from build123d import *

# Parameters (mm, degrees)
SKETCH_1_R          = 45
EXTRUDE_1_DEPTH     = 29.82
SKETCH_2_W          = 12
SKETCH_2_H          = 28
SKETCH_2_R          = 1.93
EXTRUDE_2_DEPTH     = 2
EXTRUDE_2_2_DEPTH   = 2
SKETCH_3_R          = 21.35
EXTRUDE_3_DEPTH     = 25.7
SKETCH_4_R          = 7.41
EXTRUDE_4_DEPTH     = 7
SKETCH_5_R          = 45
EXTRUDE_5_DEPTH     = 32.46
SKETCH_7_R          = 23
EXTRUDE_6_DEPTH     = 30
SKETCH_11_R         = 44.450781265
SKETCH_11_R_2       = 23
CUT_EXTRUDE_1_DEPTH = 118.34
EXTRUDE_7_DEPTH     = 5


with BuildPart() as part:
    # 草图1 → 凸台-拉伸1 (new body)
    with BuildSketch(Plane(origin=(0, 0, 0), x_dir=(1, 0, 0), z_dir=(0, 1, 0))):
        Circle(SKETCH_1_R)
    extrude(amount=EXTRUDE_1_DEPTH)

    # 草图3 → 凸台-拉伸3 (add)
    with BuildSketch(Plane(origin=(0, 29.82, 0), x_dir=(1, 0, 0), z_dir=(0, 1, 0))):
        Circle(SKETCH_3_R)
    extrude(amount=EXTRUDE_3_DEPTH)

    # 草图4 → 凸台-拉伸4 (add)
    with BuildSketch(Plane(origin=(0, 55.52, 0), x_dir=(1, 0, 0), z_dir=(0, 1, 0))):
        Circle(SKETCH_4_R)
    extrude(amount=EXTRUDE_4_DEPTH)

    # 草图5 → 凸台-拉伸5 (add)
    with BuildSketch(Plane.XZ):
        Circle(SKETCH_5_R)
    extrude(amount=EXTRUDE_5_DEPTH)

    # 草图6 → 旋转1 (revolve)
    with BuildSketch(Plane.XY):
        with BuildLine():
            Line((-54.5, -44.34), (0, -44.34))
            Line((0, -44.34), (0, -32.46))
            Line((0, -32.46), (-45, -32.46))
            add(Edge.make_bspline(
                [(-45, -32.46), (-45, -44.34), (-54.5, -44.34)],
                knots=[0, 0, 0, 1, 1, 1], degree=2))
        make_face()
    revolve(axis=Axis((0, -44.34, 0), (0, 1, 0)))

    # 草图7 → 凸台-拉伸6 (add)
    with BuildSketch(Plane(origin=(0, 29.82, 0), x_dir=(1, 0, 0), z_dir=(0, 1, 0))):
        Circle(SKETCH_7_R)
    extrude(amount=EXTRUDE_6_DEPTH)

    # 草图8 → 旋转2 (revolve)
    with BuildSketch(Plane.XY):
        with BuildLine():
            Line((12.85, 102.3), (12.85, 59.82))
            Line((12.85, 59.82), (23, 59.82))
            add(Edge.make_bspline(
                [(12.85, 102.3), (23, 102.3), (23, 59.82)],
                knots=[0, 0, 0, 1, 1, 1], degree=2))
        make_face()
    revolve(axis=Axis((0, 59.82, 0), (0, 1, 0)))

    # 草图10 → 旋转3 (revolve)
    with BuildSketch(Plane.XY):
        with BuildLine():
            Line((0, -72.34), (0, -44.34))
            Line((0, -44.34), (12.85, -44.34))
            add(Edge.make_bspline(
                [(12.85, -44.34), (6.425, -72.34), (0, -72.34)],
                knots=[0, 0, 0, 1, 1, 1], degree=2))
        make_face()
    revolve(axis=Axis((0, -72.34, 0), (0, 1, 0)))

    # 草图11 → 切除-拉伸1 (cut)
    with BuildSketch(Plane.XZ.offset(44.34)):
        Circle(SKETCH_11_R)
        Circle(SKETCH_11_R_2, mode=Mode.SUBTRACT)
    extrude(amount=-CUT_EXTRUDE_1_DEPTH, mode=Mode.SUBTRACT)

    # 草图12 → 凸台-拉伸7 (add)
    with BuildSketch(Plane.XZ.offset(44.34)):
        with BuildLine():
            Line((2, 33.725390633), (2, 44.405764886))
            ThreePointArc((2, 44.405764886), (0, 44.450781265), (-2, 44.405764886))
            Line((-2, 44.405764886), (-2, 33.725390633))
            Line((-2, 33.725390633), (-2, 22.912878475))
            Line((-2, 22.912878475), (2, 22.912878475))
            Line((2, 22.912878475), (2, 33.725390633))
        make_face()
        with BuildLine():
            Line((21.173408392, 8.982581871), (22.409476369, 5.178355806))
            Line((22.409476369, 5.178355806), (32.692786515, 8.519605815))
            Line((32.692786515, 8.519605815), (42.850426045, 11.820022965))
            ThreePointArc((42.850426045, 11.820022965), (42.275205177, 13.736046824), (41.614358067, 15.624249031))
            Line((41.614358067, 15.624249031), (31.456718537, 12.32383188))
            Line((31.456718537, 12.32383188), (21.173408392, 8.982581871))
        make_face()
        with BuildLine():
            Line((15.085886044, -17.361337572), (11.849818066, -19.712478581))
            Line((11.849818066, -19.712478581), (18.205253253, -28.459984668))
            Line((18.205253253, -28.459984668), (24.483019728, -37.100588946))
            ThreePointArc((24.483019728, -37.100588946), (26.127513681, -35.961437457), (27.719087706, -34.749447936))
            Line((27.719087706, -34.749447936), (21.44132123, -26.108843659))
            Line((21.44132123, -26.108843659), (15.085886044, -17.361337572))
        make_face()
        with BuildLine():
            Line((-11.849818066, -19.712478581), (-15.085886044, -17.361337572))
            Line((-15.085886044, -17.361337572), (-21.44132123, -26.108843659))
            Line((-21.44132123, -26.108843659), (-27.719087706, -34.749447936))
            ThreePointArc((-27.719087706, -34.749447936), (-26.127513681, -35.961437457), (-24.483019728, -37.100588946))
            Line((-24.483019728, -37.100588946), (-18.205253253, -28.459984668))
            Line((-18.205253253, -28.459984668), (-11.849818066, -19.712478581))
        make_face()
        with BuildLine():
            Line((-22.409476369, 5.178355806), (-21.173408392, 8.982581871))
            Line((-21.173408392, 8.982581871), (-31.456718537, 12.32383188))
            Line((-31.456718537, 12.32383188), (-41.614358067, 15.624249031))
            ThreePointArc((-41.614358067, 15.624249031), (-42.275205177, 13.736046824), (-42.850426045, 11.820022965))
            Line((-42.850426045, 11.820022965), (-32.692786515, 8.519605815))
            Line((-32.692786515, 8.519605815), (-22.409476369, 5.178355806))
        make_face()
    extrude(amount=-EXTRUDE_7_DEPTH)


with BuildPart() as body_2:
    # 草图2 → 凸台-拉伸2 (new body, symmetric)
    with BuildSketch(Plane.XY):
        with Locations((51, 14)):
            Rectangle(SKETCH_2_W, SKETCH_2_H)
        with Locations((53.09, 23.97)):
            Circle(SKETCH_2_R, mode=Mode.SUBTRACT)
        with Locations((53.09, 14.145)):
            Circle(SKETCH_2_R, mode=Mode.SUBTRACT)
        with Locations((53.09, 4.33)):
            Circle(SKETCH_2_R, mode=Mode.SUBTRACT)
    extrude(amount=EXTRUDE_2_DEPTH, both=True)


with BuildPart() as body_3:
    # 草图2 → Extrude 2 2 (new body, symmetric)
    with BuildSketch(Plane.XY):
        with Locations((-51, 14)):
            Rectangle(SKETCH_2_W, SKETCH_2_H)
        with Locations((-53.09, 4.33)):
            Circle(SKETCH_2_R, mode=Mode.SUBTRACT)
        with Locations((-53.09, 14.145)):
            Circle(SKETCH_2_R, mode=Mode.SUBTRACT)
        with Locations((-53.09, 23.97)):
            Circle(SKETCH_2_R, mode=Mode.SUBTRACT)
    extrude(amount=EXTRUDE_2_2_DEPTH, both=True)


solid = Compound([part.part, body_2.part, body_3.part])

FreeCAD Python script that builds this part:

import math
import FreeCAD as App
import Part
import Sketcher

V = App.Vector
Q = App.Units.Quantity


def add_polygon(sketch, points):
    """Adds a closed chain of lines whose ends are joined by coincident constraints."""
    first, n = sketch.GeometryCount, len(points)
    for a, b in zip(points, points[1:] + points[:1]):
        sketch.addGeometry(Part.LineSegment(App.Vector(*a, 0), App.Vector(*b, 0)), False)
    for i in range(n):
        sketch.addConstraint(Sketcher.Constraint("Coincident", first + i, 2, first + (i + 1) % n, 1))

doc = App.newDocument("Part")
body = doc.addObject("PartDesign::Body", "Body")
body.AllowCompound = True

# Sketch on XZ plane
sketch1 = body.newObject("Sketcher::SketchObject", "Sketch")
sketch1.AttachmentSupport = (doc.getObject("XZ_Plane"), [""])
sketch1.MapMode = "FlatFace"
sketch1.addGeometry(Part.Circle(V(0, 0, 0), V(0, 0, 1), 45), False)
sketch1.addConstraint(Sketcher.Constraint("Coincident", 0, 3, -1, 1))
sketch1.addConstraint(Sketcher.Constraint("Diameter", 0, 90.0))
pad1 = body.newObject("PartDesign::Pad", "Pad")
pad1.Profile = sketch1
pad1.Length = 29.82
pad1.Reversed = True

# Sketch on XZ plane
sketch2 = body.newObject("Sketcher::SketchObject", "Sketch001")
sketch2.AttachmentSupport = (doc.getObject("XZ_Plane"), [""])
sketch2.MapMode = "FlatFace"
sketch2.AttachmentOffset = App.Placement(V(0, 0, -29.82), App.Rotation())
sketch2.addGeometry(Part.Circle(V(0, 0, 0), V(0, 0, 1), 21.35), False)
sketch2.addConstraint(Sketcher.Constraint("Coincident", 0, 3, -1, 1))
sketch2.addConstraint(Sketcher.Constraint("Diameter", 0, 42.7))
pad2 = body.newObject("PartDesign::Pad", "Pad001")
pad2.Profile = sketch2
pad2.Length = 25.7
pad2.Reversed = True

# Sketch on XZ plane
sketch3 = body.newObject("Sketcher::SketchObject", "Sketch002")
sketch3.AttachmentSupport = (doc.getObject("XZ_Plane"), [""])
sketch3.MapMode = "FlatFace"
sketch3.AttachmentOffset = App.Placement(V(0, 0, -55.52), App.Rotation())
sketch3.addGeometry(Part.Circle(V(0, 0, 0), V(0, 0, 1), 7.41), False)
sketch3.addConstraint(Sketcher.Constraint("Coincident", 0, 3, -1, 1))
sketch3.addConstraint(Sketcher.Constraint("Diameter", 0, 14.82))
pad3 = body.newObject("PartDesign::Pad", "Pad002")
pad3.Profile = sketch3
pad3.Length = 7
pad3.Reversed = True

# Sketch on XZ plane
sketch4 = body.newObject("Sketcher::SketchObject", "Sketch003")
sketch4.AttachmentSupport = (doc.getObject("XZ_Plane"), [""])
sketch4.MapMode = "FlatFace"
sketch4.addGeometry(Part.Circle(V(0, 0, 0), V(0, 0, 1), 45), False)
sketch4.addConstraint(Sketcher.Constraint("Coincident", 0, 3, -1, 1))
sketch4.addConstraint(Sketcher.Constraint("Diameter", 0, 90.0))
pad4 = body.newObject("PartDesign::Pad", "Pad003")
pad4.Profile = sketch4
pad4.Length = 32.46

# Sketch on XY plane
sketch5 = body.newObject("Sketcher::SketchObject", "Sketch004")
sketch5.AttachmentSupport = (doc.getObject("XY_Plane"), [""])
sketch5.MapMode = "FlatFace"
sketch5.addGeometry(Part.LineSegment(V(-54.5, -44.34, 0), V(0, -44.34, 0)), False)
sketch5.addGeometry(Part.LineSegment(V(0, -44.34, 0), V(0, -32.46, 0)), False)
sketch5.addGeometry(Part.LineSegment(V(0, -32.46, 0), V(-45, -32.46, 0)), False)
sketch5.addGeometry(Part.BSplineCurve([V(-45, -32.46, 0), V(-45, -44.34, 0), V(-54.5, -44.34, 0)], [3, 3], [0, 1], False, 2, [1, 1, 1], False), False)
sketch5.addConstraint(Sketcher.Constraint("Block", 3))
sketch5.addConstraint(Sketcher.Constraint("Coincident", 0, 2, 1, 1))
sketch5.addConstraint(Sketcher.Constraint("Coincident", 1, 2, 2, 1))
sketch5.addConstraint(Sketcher.Constraint("Coincident", 2, 2, 3, 1))
sketch5.addConstraint(Sketcher.Constraint("Coincident", 3, 2, 0, 1))
sketch5.addConstraint(Sketcher.Constraint("Horizontal", 0))
sketch5.addConstraint(Sketcher.Constraint("Vertical", 1))
sketch5.addConstraint(Sketcher.Constraint("Horizontal", 2))
sketch5.addConstraint(Sketcher.Constraint("PointOnObject", 0, 2, -2))
revolution = body.newObject("PartDesign::Revolution", "Revolution")
revolution.Profile = sketch5
revolution.ReferenceAxis = (sketch5, ["V_Axis"])
revolution.Angle = 360

# Sketch on XZ plane
sketch6 = body.newObject("Sketcher::SketchObject", "Sketch005")
sketch6.AttachmentSupport = (doc.getObject("XZ_Plane"), [""])
sketch6.MapMode = "FlatFace"
sketch6.AttachmentOffset = App.Placement(V(0, 0, -29.82), App.Rotation())
sketch6.addGeometry(Part.Circle(V(0, 0, 0), V(0, 0, 1), 23), False)
sketch6.addConstraint(Sketcher.Constraint("Coincident", 0, 3, -1, 1))
sketch6.addConstraint(Sketcher.Constraint("Diameter", 0, 46.0))
pad5 = body.newObject("PartDesign::Pad", "Pad004")
pad5.Profile = sketch6
pad5.Length = 30
pad5.Reversed = True

# Sketch on XY plane
sketch7 = body.newObject("Sketcher::SketchObject", "Sketch006")
sketch7.AttachmentSupport = (doc.getObject("XY_Plane"), [""])
sketch7.MapMode = "FlatFace"
sketch7.addGeometry(Part.LineSegment(V(12.85, 102.3, 0), V(12.85, 59.82, 0)), False)
sketch7.addGeometry(Part.LineSegment(V(12.85, 59.82, 0), V(23, 59.82, 0)), False)
sketch7.addGeometry(Part.BSplineCurve([V(12.85, 102.3, 0), V(23, 102.3, 0), V(23, 59.82, 0)], [3, 3], [0, 1], False, 2, [1, 1, 1], False), False)
sketch7.addConstraint(Sketcher.Constraint("Block", 2))
sketch7.addConstraint(Sketcher.Constraint("Coincident", 0, 2, 1, 1))
sketch7.addConstraint(Sketcher.Constraint("Coincident", 1, 2, 2, 2))
sketch7.addConstraint(Sketcher.Constraint("Coincident", 2, 1, 0, 1))
sketch7.addConstraint(Sketcher.Constraint("Vertical", 0))
sketch7.addConstraint(Sketcher.Constraint("Horizontal", 1))
revolution2 = body.newObject("PartDesign::Revolution", "Revolution001")
revolution2.Profile = sketch7
revolution2.ReferenceAxis = (sketch7, ["V_Axis"])
revolution2.Angle = 360

# Sketch on XY plane
sketch8 = body.newObject("Sketcher::SketchObject", "Sketch007")
sketch8.AttachmentSupport = (doc.getObject("XY_Plane"), [""])
sketch8.MapMode = "FlatFace"
sketch8.addGeometry(Part.LineSegment(V(0, -44.34, 0), V(0, -72.34, 0)), False)
sketch8.addGeometry(Part.BSplineCurve([V(12.85, -44.34, 0), V(6.425, -72.34, 0), V(0, -72.34, 0)], [3, 3], [0, 1], False, 2, [1, 1, 1], False), False)
sketch8.addGeometry(Part.LineSegment(V(12.85, -44.34, 0), V(0, -44.34, 0)), False)
sketch8.addConstraint(Sketcher.Constraint("Block", 1))
sketch8.addConstraint(Sketcher.Constraint("Coincident", 0, 2, 1, 2))
sketch8.addConstraint(Sketcher.Constraint("Coincident", 1, 1, 2, 1))
sketch8.addConstraint(Sketcher.Constraint("Coincident", 2, 2, 0, 1))
sketch8.addConstraint(Sketcher.Constraint("Vertical", 0))
sketch8.addConstraint(Sketcher.Constraint("Horizontal", 2))
revolution3 = body.newObject("PartDesign::Revolution", "Revolution002")
revolution3.Profile = sketch8
revolution3.ReferenceAxis = (sketch8, ["V_Axis"])
revolution3.Angle = 360

# Sketch on XZ plane
sketch9 = body.newObject("Sketcher::SketchObject", "Sketch008")
sketch9.AttachmentSupport = (doc.getObject("XZ_Plane"), [""])
sketch9.MapMode = "FlatFace"
sketch9.AttachmentOffset = App.Placement(V(0, 0, 44.34), App.Rotation())
sketch9.addGeometry(Part.Circle(V(0, 0, 0), V(0, 0, 1), 44.450781), False)
sketch9.addGeometry(Part.Circle(V(0, 0, 0), V(0, 0, 1), 23), False)
sketch9.addConstraint(Sketcher.Constraint("Coincident", 0, 3, -1, 1))
sketch9.addConstraint(Sketcher.Constraint("Coincident", 1, 3, -1, 1))
sketch9.addConstraint(Sketcher.Constraint("Diameter", 1, 46.0))
sketch9.addConstraint(Sketcher.Constraint("Diameter", 0, 88.901563))
pocket1 = body.newObject("PartDesign::Pocket", "Pocket")
pocket1.Profile = sketch9
pocket1.Length = 118.34

# Sketch on XZ plane
sketch10 = body.newObject("Sketcher::SketchObject", "Sketch009")
sketch10.AttachmentSupport = (doc.getObject("XZ_Plane"), [""])
sketch10.MapMode = "FlatFace"
sketch10.AttachmentOffset = App.Placement(V(0, 0, 44.34), App.Rotation())
sketch10.addGeometry(Part.ArcOfCircle(Part.Circle(V(0, 0, 0), V(0, 0, 1), 44.450782), math.radians(87.421187), math.radians(92.578813)), False)
sketch10.addGeometry(Part.LineSegment(V(-2, 44.405765, 0), V(-2, 22.912878, 0)), False)
sketch10.addGeometry(Part.LineSegment(V(-2, 22.912878, 0), V(2, 22.912878, 0)), False)
sketch10.addGeometry(Part.LineSegment(V(2, 22.912878, 0), V(2, 44.405765, 0)), False)
sketch10.addGeometry(Part.LineSegment(V(21.173408, 8.982582, 0), V(22.409476, 5.178356, 0)), False)
sketch10.addGeometry(Part.LineSegment(V(22.409476, 5.178356, 0), V(32.692787, 8.519606, 0)), False)
sketch10.addGeometry(Part.LineSegment(V(32.692787, 8.519606, 0), V(42.850426, 11.820023, 0)), False)
sketch10.addGeometry(Part.ArcOfCircle(Part.Circle(V(0, 0, 0), V(0, 0, 1), 44.450781), math.radians(15.421187), math.radians(20.578813)), False)
sketch10.addGeometry(Part.LineSegment(V(41.614358, 15.624249, 0), V(31.456719, 12.323832, 0)), False)
sketch10.addGeometry(Part.LineSegment(V(31.456719, 12.323832, 0), V(21.173408, 8.982582, 0)), False)
sketch10.addGeometry(Part.LineSegment(V(15.085886, -17.361338, 0), V(11.849818, -19.712479, 0)), False)
sketch10.addGeometry(Part.LineSegment(V(11.849818, -19.712479, 0), V(18.205253, -28.459985, 0)), False)
sketch10.addGeometry(Part.LineSegment(V(18.205253, -28.459985, 0), V(24.48302, -37.100589, 0)), False)
sketch10.addGeometry(Part.ArcOfCircle(Part.Circle(V(0, 0, 0), V(0, 0, 1), 44.450781), math.radians(-56.578813), math.radians(-51.421187)), False)
sketch10.addGeometry(Part.LineSegment(V(27.719088, -34.749448, 0), V(21.441321, -26.108844, 0)), False)
sketch10.addGeometry(Part.LineSegment(V(21.441321, -26.108844, 0), V(15.085886, -17.361338, 0)), False)
sketch10.addGeometry(Part.LineSegment(V(-11.849818, -19.712479, 0), V(-15.085886, -17.361338, 0)), False)
sketch10.addGeometry(Part.LineSegment(V(-15.085886, -17.361338, 0), V(-21.441321, -26.108844, 0)), False)
sketch10.addGeometry(Part.LineSegment(V(-21.441321, -26.108844, 0), V(-27.719088, -34.749448, 0)), False)
sketch10.addGeometry(Part.ArcOfCircle(Part.Circle(V(0, 0, 0), V(0, 0, 1), 44.450781), math.radians(-128.578813), math.radians(-123.421187)), False)
sketch10.addGeometry(Part.LineSegment(V(-24.48302, -37.100589, 0), V(-18.205253, -28.459985, 0)), False)
sketch10.addGeometry(Part.LineSegment(V(-18.205253, -28.459985, 0), V(-11.849818, -19.712479, 0)), False)
sketch10.addGeometry(Part.LineSegment(V(-22.409476, 5.178356, 0), V(-21.173408, 8.982582, 0)), False)
sketch10.addGeometry(Part.LineSegment(V(-21.173408, 8.982582, 0), V(-31.456719, 12.323832, 0)), False)
sketch10.addGeometry(Part.LineSegment(V(-31.456719, 12.323832, 0), V(-41.614358, 15.624249, 0)), False)
sketch10.addGeometry(Part.ArcOfCircle(Part.Circle(V(0, 0, 0), V(0, 0, 1), 44.450781), math.radians(159.421187), math.radians(164.578813)), False)
sketch10.addGeometry(Part.LineSegment(V(-42.850426, 11.820023, 0), V(-32.692787, 8.519606, 0)), False)
sketch10.addGeometry(Part.LineSegment(V(-32.692787, 8.519606, 0), V(-22.409476, 5.178356, 0)), False)
sketch10.addConstraint(Sketcher.Constraint("Coincident", 0, 2, 1, 1))
sketch10.addConstraint(Sketcher.Constraint("Coincident", 1, 2, 2, 1))
sketch10.addConstraint(Sketcher.Constraint("Coincident", 2, 2, 3, 1))
sketch10.addConstraint(Sketcher.Constraint("Coincident", 3, 2, 0, 1))
sketch10.addConstraint(Sketcher.Constraint("Coincident", 4, 2, 5, 1))
sketch10.addConstraint(Sketcher.Constraint("Coincident", 5, 2, 6, 1))
sketch10.addConstraint(Sketcher.Constraint("Coincident", 6, 2, 7, 1))
sketch10.addConstraint(Sketcher.Constraint("Coincident", 7, 2, 8, 1))
sketch10.addConstraint(Sketcher.Constraint("Coincident", 8, 2, 9, 1))
sketch10.addConstraint(Sketcher.Constraint("Coincident", 9, 2, 4, 1))
sketch10.addConstraint(Sketcher.Constraint("Coincident", 10, 2, 11, 1))
sketch10.addConstraint(Sketcher.Constraint("Coincident", 11, 2, 12, 1))
sketch10.addConstraint(Sketcher.Constraint("Coincident", 12, 2, 13, 1))
sketch10.addConstraint(Sketcher.Constraint("Coincident", 13, 2, 14, 1))
sketch10.addConstraint(Sketcher.Constraint("Coincident", 14, 2, 15, 1))
sketch10.addConstraint(Sketcher.Constraint("Coincident", 15, 2, 10, 1))
sketch10.addConstraint(Sketcher.Constraint("Coincident", 16, 2, 17, 1))
sketch10.addConstraint(Sketcher.Constraint("Coincident", 17, 2, 18, 1))
sketch10.addConstraint(Sketcher.Constraint("Coincident", 18, 2, 19, 1))
sketch10.addConstraint(Sketcher.Constraint("Coincident", 19, 2, 20, 1))
sketch10.addConstraint(Sketcher.Constraint("Coincident", 20, 2, 21, 1))
sketch10.addConstraint(Sketcher.Constraint("Coincident", 21, 2, 16, 1))
sketch10.addConstraint(Sketcher.Constraint("Coincident", 22, 2, 23, 1))
sketch10.addConstraint(Sketcher.Constraint("Coincident", 23, 2, 24, 1))
sketch10.addConstraint(Sketcher.Constraint("Coincident", 24, 2, 25, 1))
sketch10.addConstraint(Sketcher.Constraint("Coincident", 25, 2, 26, 1))
sketch10.addConstraint(Sketcher.Constraint("Coincident", 26, 2, 27, 1))
sketch10.addConstraint(Sketcher.Constraint("Coincident", 27, 2, 22, 1))
sketch10.addConstraint(Sketcher.Constraint("Vertical", 1))
sketch10.addConstraint(Sketcher.Constraint("Horizontal", 2))
sketch10.addConstraint(Sketcher.Constraint("Vertical", 3))
sketch10.addConstraint(Sketcher.Constraint("Coincident", 0, 3, -1, 1))
sketch10.addConstraint(Sketcher.Constraint("Coincident", 7, 3, -1, 1))
sketch10.addConstraint(Sketcher.Constraint("Coincident", 13, 3, -1, 1))
sketch10.addConstraint(Sketcher.Constraint("Coincident", 19, 3, -1, 1))
sketch10.addConstraint(Sketcher.Constraint("Coincident", 25, 3, -1, 1))
sketch10.addConstraint(Sketcher.Constraint("Equal", 0, 7))
sketch10.addConstraint(Sketcher.Constraint("Equal", 7, 13))
sketch10.addConstraint(Sketcher.Constraint("Equal", 13, 19))
sketch10.addConstraint(Sketcher.Constraint("Equal", 19, 25))
sketch10.addConstraint(Sketcher.Constraint("Symmetric", 15, 2, 16, 2, -2))
sketch10.addConstraint(Sketcher.Constraint("Symmetric", 14, 2, 17, 2, -2))
sketch10.addConstraint(Sketcher.Constraint("Symmetric", 11, 2, 20, 2, -2))
sketch10.addConstraint(Sketcher.Constraint("Symmetric", 10, 2, 21, 2, -2))
sketch10.addConstraint(Sketcher.Constraint("Symmetric", 9, 2, 22, 2, -2))
sketch10.addConstraint(Sketcher.Constraint("Symmetric", 8, 2, 23, 2, -2))
sketch10.addConstraint(Sketcher.Constraint("Symmetric", 5, 2, 26, 2, -2))
sketch10.addConstraint(Sketcher.Constraint("Symmetric", 4, 2, 27, 2, -2))
sketch10.addConstraint(Sketcher.Constraint("Perpendicular", 4, 5))
sketch10.addConstraint(Sketcher.Constraint("Parallel", 5, 6))
sketch10.addConstraint(Sketcher.Constraint("Parallel", 6, 8))
sketch10.addConstraint(Sketcher.Constraint("Parallel", 8, 9))
sketch10.addConstraint(Sketcher.Constraint("Perpendicular", 10, 11))
sketch10.addConstraint(Sketcher.Constraint("Parallel", 11, 12))
sketch10.addConstraint(Sketcher.Constraint("Parallel", 12, 14))
sketch10.addConstraint(Sketcher.Constraint("Parallel", 14, 15))
sketch10.addConstraint(Sketcher.Constraint("Parallel", 17, 18))
sketch10.addConstraint(Sketcher.Constraint("Parallel", 18, 20))
sketch10.addConstraint(Sketcher.Constraint("Parallel", 23, 24))
sketch10.addConstraint(Sketcher.Constraint("Parallel", 24, 26))
sketch10.addConstraint(Sketcher.Constraint("Horizontal", 0, 2, 3, 2))
sketch10.addConstraint(Sketcher.Constraint("Equal", 6, 8))
sketch10.addConstraint(Sketcher.Constraint("Equal", 5, 9))
sketch10.addConstraint(Sketcher.Constraint("Equal", 4, 10))
sketch10.addConstraint(Sketcher.Constraint("Equal", 9, 11))
sketch10.addConstraint(Sketcher.Constraint("Equal", 8, 12))
sketch10.addConstraint(Sketcher.Constraint("Equal", 12, 14))
sketch10.addConstraint(Sketcher.Constraint("Equal", 11, 15))
sketch10.addConstraint(Sketcher.Constraint("DistanceX", 2, 1, 2, 2, 4.0))
sketch10.addConstraint(Sketcher.Constraint("Angle", 4, Q("-72 deg")))
sketch10.addConstraint(Sketcher.Constraint("Angle", 10, Q("-144 deg")))
sketch10.addConstraint(Sketcher.Constraint("Distance", 4, 4.0))
sketch10.addConstraint(Sketcher.Constraint("Radius", 0, 44.450782))
sketch10.addConstraint(Sketcher.Constraint("DistanceX", 10, 2, 12, 2, 12.633202))
sketch10.addConstraint(Sketcher.Constraint("DistanceX", 13, 2, 5, 2, 4.973699))
sketch10.addConstraint(Sketcher.Constraint("DistanceY", 1, 2, 1, 1, 21.492886))
pad6 = body.newObject("PartDesign::Pad", "Pad005")
pad6.Profile = sketch10
pad6.Length = 5
pad6.Reversed = True
body2 = doc.addObject("PartDesign::Body", "Body001")

# Sketch on XY plane
sketch11 = body2.newObject("Sketcher::SketchObject", "Sketch010")
sketch11.AttachmentSupport = (doc.getObject("XY_Plane001"), [""])
sketch11.MapMode = "FlatFace"
add_polygon(sketch11, [(45, 28), (45, 0), (57, 0), (57, 28)])  # lines 0-3
sketch11.addGeometry(Part.Circle(V(53.09, 4.33, 0), V(0, 0, 1), 1.93), False)  # 4
sketch11.addGeometry(Part.Circle(V(53.09, 14.145, 0), V(0, 0, 1), 1.93), False)  # 5
sketch11.addGeometry(Part.Circle(V(53.09, 23.97, 0), V(0, 0, 1), 1.93), False)  # 6
sketch11.addConstraint(Sketcher.Constraint("Vertical", 0))
sketch11.addConstraint(Sketcher.Constraint("Horizontal", 1))
sketch11.addConstraint(Sketcher.Constraint("Vertical", 2))
sketch11.addConstraint(Sketcher.Constraint("Horizontal", 3))
sketch11.addConstraint(Sketcher.Constraint("Equal", 4, 5))
sketch11.addConstraint(Sketcher.Constraint("Equal", 5, 6))
sketch11.addConstraint(Sketcher.Constraint("PointOnObject", 0, 2, -1))
sketch11.addConstraint(Sketcher.Constraint("Vertical", 4, 3, 5, 3))
sketch11.addConstraint(Sketcher.Constraint("Vertical", 5, 3, 6, 3))
sketch11.addConstraint(Sketcher.Constraint("Diameter", 4, 3.86))
sketch11.addConstraint(Sketcher.Constraint("DistanceX", 1, 1, 1, 2, 12.0))
sketch11.addConstraint(Sketcher.Constraint("DistanceY", 0, 2, 0, 1, 28.0))
sketch11.addConstraint(Sketcher.Constraint("DistanceX", -1, 1, 0, 2, 45.0))
sketch11.addConstraint(Sketcher.Constraint("DistanceX", -1, 1, 4, 3, 53.09))
sketch11.addConstraint(Sketcher.Constraint("DistanceY", -1, 1, 4, 3, 4.33))
sketch11.addConstraint(Sketcher.Constraint("DistanceY", -1, 1, 6, 3, 23.97))
sketch11.addConstraint(Sketcher.Constraint("DistanceY", -1, 1, 5, 3, 14.145))
pad7 = body2.newObject("PartDesign::Pad", "Pad006")
pad7.Profile = sketch11
pad7.Length = 4
pad7.Midplane = True
body3 = doc.addObject("PartDesign::Body", "Body002")

# Sketch on XY plane
sketch12 = body3.newObject("Sketcher::SketchObject", "Sketch011")
sketch12.AttachmentSupport = (doc.getObject("XY_Plane002"), [""])
sketch12.MapMode = "FlatFace"
add_polygon(sketch12, [(-57, 28), (-57, 0), (-45, 0), (-45, 28)])  # lines 0-3
sketch12.addGeometry(Part.Circle(V(-53.09, 4.33, 0), V(0, 0, 1), 1.93), False)  # 4
sketch12.addGeometry(Part.Circle(V(-53.09, 14.145, 0), V(0, 0, 1), 1.93), False)  # 5
sketch12.addGeometry(Part.Circle(V(-53.09, 23.97, 0), V(0, 0, 1), 1.93), False)  # 6
sketch12.addConstraint(Sketcher.Constraint("Vertical", 0))
sketch12.addConstraint(Sketcher.Constraint("Horizontal", 1))
sketch12.addConstraint(Sketcher.Constraint("Vertical", 2))
sketch12.addConstraint(Sketcher.Constraint("Horizontal", 3))
sketch12.addConstraint(Sketcher.Constraint("Equal", 4, 5))
sketch12.addConstraint(Sketcher.Constraint("Equal", 5, 6))
sketch12.addConstraint(Sketcher.Constraint("PointOnObject", 0, 2, -1))
sketch12.addConstraint(Sketcher.Constraint("Vertical", 4, 3, 5, 3))
sketch12.addConstraint(Sketcher.Constraint("Vertical", 5, 3, 6, 3))
sketch12.addConstraint(Sketcher.Constraint("Diameter", 4, 3.86))
sketch12.addConstraint(Sketcher.Constraint("DistanceX", 1, 1, 1, 2, 12.0))
sketch12.addConstraint(Sketcher.Constraint("DistanceY", 0, 2, 0, 1, 28.0))
sketch12.addConstraint(Sketcher.Constraint("DistanceX", 0, 2, -1, 1, 57.0))
sketch12.addConstraint(Sketcher.Constraint("DistanceX", 4, 3, -1, 1, 53.09))
sketch12.addConstraint(Sketcher.Constraint("DistanceY", -1, 1, 4, 3, 4.33))
sketch12.addConstraint(Sketcher.Constraint("DistanceY", -1, 1, 6, 3, 23.97))
sketch12.addConstraint(Sketcher.Constraint("DistanceY", -1, 1, 5, 3, 14.145))
pad8 = body3.newObject("PartDesign::Pad", "Pad007")
pad8.Profile = sketch12
pad8.Length = 4
pad8.Midplane = True

doc.recompute()
